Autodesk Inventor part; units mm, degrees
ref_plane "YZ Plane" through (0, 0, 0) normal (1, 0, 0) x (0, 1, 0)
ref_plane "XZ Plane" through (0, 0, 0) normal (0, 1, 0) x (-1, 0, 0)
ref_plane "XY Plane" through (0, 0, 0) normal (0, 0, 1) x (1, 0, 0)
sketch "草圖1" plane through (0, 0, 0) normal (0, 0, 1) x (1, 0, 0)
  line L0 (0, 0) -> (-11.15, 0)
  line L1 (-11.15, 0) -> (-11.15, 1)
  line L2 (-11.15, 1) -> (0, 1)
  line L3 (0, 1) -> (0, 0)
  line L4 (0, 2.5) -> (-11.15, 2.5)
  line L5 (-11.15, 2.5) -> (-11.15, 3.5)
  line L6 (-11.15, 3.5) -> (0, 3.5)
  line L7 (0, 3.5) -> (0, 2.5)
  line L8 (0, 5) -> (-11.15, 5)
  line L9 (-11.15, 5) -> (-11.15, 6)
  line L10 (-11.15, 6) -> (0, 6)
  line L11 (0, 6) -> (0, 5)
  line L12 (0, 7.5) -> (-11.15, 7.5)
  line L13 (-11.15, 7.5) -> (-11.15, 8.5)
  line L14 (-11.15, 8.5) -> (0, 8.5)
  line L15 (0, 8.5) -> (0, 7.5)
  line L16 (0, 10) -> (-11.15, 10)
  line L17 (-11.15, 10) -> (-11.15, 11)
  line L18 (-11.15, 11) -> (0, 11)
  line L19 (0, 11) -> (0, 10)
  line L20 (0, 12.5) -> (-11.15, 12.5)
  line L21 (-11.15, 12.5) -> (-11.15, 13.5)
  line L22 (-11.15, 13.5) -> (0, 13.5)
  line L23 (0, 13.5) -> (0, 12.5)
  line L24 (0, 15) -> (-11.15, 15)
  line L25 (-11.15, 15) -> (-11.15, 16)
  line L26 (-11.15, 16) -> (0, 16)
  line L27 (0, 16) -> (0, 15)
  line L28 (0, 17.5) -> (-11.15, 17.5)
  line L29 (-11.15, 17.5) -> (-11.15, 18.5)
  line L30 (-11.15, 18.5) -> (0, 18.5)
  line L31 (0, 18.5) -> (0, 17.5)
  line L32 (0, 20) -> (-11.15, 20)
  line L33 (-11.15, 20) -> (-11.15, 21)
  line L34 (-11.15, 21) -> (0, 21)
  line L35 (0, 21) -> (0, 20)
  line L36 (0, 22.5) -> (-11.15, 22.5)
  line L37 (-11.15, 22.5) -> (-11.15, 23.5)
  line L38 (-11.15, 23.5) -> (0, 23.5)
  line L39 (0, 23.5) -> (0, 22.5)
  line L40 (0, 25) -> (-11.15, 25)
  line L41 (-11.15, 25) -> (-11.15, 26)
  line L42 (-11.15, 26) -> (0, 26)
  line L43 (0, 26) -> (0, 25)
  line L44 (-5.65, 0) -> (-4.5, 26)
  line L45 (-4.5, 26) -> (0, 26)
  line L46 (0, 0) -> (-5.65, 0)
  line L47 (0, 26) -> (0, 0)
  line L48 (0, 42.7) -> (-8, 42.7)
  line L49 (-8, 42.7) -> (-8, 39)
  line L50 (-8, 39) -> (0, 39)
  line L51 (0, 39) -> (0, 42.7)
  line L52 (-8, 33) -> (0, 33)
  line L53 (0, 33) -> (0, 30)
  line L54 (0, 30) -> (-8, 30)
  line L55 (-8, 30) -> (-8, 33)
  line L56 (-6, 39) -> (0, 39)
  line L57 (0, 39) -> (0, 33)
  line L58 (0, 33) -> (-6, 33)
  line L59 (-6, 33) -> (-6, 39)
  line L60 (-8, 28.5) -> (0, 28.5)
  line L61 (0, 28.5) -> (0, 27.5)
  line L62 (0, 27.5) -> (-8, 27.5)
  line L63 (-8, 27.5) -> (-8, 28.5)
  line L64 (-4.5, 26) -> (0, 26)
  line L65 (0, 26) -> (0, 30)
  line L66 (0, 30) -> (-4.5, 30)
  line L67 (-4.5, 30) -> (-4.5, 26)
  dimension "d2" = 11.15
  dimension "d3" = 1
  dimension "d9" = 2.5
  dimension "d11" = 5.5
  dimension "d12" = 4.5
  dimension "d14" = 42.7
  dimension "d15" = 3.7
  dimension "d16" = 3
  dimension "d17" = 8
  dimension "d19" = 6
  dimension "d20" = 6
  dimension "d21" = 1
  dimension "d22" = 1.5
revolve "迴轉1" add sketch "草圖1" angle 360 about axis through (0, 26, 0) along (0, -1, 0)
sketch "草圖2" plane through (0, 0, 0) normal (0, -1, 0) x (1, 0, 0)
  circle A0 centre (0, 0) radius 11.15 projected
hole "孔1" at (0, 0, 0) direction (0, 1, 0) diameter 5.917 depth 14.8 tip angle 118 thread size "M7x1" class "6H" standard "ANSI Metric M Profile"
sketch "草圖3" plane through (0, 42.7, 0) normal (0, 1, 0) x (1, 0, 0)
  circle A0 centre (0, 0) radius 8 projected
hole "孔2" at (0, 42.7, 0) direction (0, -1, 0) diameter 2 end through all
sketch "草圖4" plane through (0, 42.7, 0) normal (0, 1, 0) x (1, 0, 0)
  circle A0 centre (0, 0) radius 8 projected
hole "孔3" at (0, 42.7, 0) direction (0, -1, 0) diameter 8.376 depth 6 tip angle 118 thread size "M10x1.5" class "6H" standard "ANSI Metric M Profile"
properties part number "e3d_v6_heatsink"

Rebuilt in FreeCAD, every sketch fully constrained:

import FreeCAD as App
import Part
import Sketcher

V = App.Vector


def add_polygon(sketch, points):
    """Adds a closed chain of lines whose ends are joined by coincident constraints."""
    first, n = sketch.GeometryCount, len(points)
    for a, b in zip(points, points[1:] + points[:1]):
        sketch.addGeometry(Part.LineSegment(App.Vector(*a, 0), App.Vector(*b, 0)), False)
    for i in range(n):
        sketch.addConstraint(Sketcher.Constraint("Coincident", first + i, 2, first + (i + 1) % n, 1))

doc = App.newDocument("Part")
body = doc.addObject("PartDesign::Body", "Body")

sketch1 = doc.addObject("Sketcher::SketchObject", "Sketch")
body.addObject(sketch1)
sketch1.AttachmentSupport = (doc.XY_Plane, [""])
sketch1.MapMode = "FlatFace"
add_polygon(sketch1, [(0, 0), (0, 42.7), (-8, 42.7), (-8, 39), (-6, 39), (-6, 33), (-8, 33), (-8, 30), (-4.5, 30), (-4.5, 28.5), (-8, 28.5), (-8, 27.5), (-4.5, 27.5), (-4.5, 26), (-11.2, 26), (-11.2, 25), (-4.5, 25), (-4.6, 23.5), (-11.2, 23.5), (-11.2, 22.5), (-4.7, 22.5), (-4.7, 21), (-11.2, 21), (-11.2, 20), (-4.8, 20), (-4.8, 18.5), (-11.2, 18.5), (-11.2, 17.5), (-4.9, 17.5), (-4.9, 16), (-11.2, 16), (-11.2, 15), (-5, 15), (-5.1, 13.5), (-11.2, 13.5), (-11.2, 12.5), (-5.1, 12.5), (-5.2, 11), (-11.2, 11), (-11.2, 10), (-5.2, 10), (-5.3, 8.5), (-11.2, 8.5), (-11.2, 7.5), (-5.3, 7.5), (-5.4, 6), (-11.2, 6), (-11.2, 5), (-5.4, 5), (-5.5, 3.5), (-11.2, 3.5), (-11.2, 2.5), (-5.5, 2.5), (-5.6, 1), (-11.2, 1), (-11.2, 0)])
sketch1.addConstraint([
    Sketcher.Constraint("Vertical", 0),
    Sketcher.Constraint("Horizontal", 1),
    Sketcher.Constraint("Vertical", 2),
    Sketcher.Constraint("Horizontal", 3),
    Sketcher.Constraint("Vertical", 4),
    Sketcher.Constraint("Horizontal", 5),
    Sketcher.Constraint("Vertical", 6),
    Sketcher.Constraint("Horizontal", 7),
    Sketcher.Constraint("Vertical", 8),
    Sketcher.Constraint("Horizontal", 9),
    Sketcher.Constraint("Vertical", 10),
    Sketcher.Constraint("Horizontal", 11),
    Sketcher.Constraint("Vertical", 12),
    Sketcher.Constraint("Horizontal", 13),
    Sketcher.Constraint("Vertical", 14),
    Sketcher.Constraint("Horizontal", 15),
    Sketcher.Constraint("Horizontal", 17),
    Sketcher.Constraint("Vertical", 18),
    Sketcher.Constraint("Horizontal", 19),
    Sketcher.Constraint("Horizontal", 21),
    Sketcher.Constraint("Vertical", 22),
    Sketcher.Constraint("Horizontal", 23),
    Sketcher.Constraint("Horizontal", 25),
    Sketcher.Constraint("Vertical", 26),
    Sketcher.Constraint("Horizontal", 27),
    Sketcher.Constraint("Horizontal", 29),
    Sketcher.Constraint("Vertical", 30),
    Sketcher.Constraint("Horizontal", 31),
    Sketcher.Constraint("Horizontal", 33),
    Sketcher.Constraint("Vertical", 34),
    Sketcher.Constraint("Horizontal", 35),
    Sketcher.Constraint("Horizontal", 37),
    Sketcher.Constraint("Vertical", 38),
    Sketcher.Constraint("Horizontal", 39),
    Sketcher.Constraint("Horizontal", 41),
    Sketcher.Constraint("Vertical", 42),
    Sketcher.Constraint("Horizontal", 43),
    Sketcher.Constraint("Horizontal", 45),
    Sketcher.Constraint("Vertical", 46),
    Sketcher.Constraint("Horizontal", 47),
    Sketcher.Constraint("Horizontal", 49),
    Sketcher.Constraint("Vertical", 50),
    Sketcher.Constraint("Horizontal", 51),
    Sketcher.Constraint("Horizontal", 53),
    Sketcher.Constraint("Vertical", 54),
    Sketcher.Constraint("Horizontal", 55),
    Sketcher.Constraint("Coincident", 55, 2, -1, 1),
    Sketcher.Constraint("Parallel", 16, 20),
    Sketcher.Constraint("Parallel", 20, 24),
    Sketcher.Constraint("Parallel", 24, 28),
    Sketcher.Constraint("Parallel", 28, 32),
    Sketcher.Constraint("Parallel", 32, 36),
    Sketcher.Constraint("Parallel", 36, 40),
    Sketcher.Constraint("Parallel", 40, 44),
    Sketcher.Constraint("Parallel", 44, 48),
    Sketcher.Constraint("Parallel", 48, 52),
    Sketcher.Constraint("Vertical", 2, 2, 5, 2),
    Sketcher.Constraint("Vertical", 6, 2, 9, 2),
    Sketcher.Constraint("Vertical", 8, 2, 11, 2),
    Sketcher.Constraint("Vertical", 14, 2, 17, 2),
    Sketcher.Constraint("Vertical", 18, 2, 21, 2),
    Sketcher.Constraint("Vertical", 22, 2, 25, 2),
    Sketcher.Constraint("Vertical", 26, 2, 29, 2),
    Sketcher.Constraint("Vertical", 30, 2, 33, 2),
    Sketcher.Constraint("Vertical", 34, 2, 37, 2),
    Sketcher.Constraint("Vertical", 38, 2, 41, 2),
    Sketcher.Constraint("Vertical", 42, 2, 45, 2),
    Sketcher.Constraint("Vertical", 46, 2, 49, 2),
    Sketcher.Constraint("Vertical", 50, 2, 53, 2),
    Sketcher.Constraint("Equal", 8, 12),
    Sketcher.Constraint("Equal", 10, 14),
    Sketcher.Constraint("Equal", 14, 18),
    Sketcher.Constraint("Equal", 18, 22),
    Sketcher.Constraint("Equal", 22, 26),
    Sketcher.Constraint("Equal", 26, 30),
    Sketcher.Constraint("Equal", 30, 34),
    Sketcher.Constraint("Equal", 34, 38),
    Sketcher.Constraint("Equal", 38, 42),
    Sketcher.Constraint("Equal", 42, 46),
    Sketcher.Constraint("Equal", 46, 50),
    Sketcher.Constraint("Equal", 50, 54),
    Sketcher.Constraint("Equal", 16, 20),
    Sketcher.Constraint("Equal", 20, 24),
    Sketcher.Constraint("Equal", 24, 28),
    Sketcher.Constraint("Equal", 28, 32),
    Sketcher.Constraint("Equal", 32, 36),
    Sketcher.Constraint("Equal", 36, 40),
    Sketcher.Constraint("Equal", 40, 44),
    Sketcher.Constraint("Equal", 44, 48),
    Sketcher.Constraint("Equal", 48, 52),
    Sketcher.Constraint("DistanceX", 1, 2, 1, 1, 8.0),
    Sketcher.Constraint("DistanceY", 4, 2, 4, 1, 6.0),
    Sketcher.Constraint("DistanceY", 6, 2, 6, 1, 3.0),
    Sketcher.Constraint("DistanceY", 10, 2, 10, 1, 1.0),
    Sketcher.Constraint("DistanceY", 0, 1, 0, 2, 42.7),
    Sketcher.Constraint("DistanceY", 2, 2, 2, 1, 3.7),
    Sketcher.Constraint("DistanceY", 8, 2, 8, 1, 1.5),
    Sketcher.Constraint("DistanceX", 3, 2, -1, 1, 6.0),
    Sketcher.Constraint("DistanceX", 55, 1, 55, 2, 11.15),
    Sketcher.Constraint("DistanceX", 7, 2, -1, 1, 4.5),
    Sketcher.Constraint("DistanceX", 27, 1, 27, 2, 6.274),
    Sketcher.Constraint("DistanceX", 33, 2, 33, 1, 6.097),
    Sketcher.Constraint("DistanceX", 35, 1, 35, 2, 6.053),
    Sketcher.Constraint("DistanceX", 41, 2, 41, 1, 5.876),
    Sketcher.Constraint("DistanceX", 15, 1, 15, 2, 6.6058),
    Sketcher.Constraint("DistanceX", 17, 2, 17, 1, 6.5394),
    Sketcher.Constraint("DistanceX", 19, 1, 19, 2, 6.4952),
    Sketcher.Constraint("DistanceX", 23, 1, 23, 2, 6.3846),
    Sketcher.Constraint("DistanceX", 43, 1, 43, 2, 5.8317),
    Sketcher.Constraint("DistanceX", 47, 1, 47, 2, 5.7212),
    Sketcher.Constraint("DistanceX", 51, 1, 51, 2, 5.6106),
])
revolution = doc.addObject("PartDesign::Revolution", "Revolution")
body.addObject(revolution)
revolution.Profile = sketch1
revolution.ReferenceAxis = (sketch1, ["V_Axis"])
revolution.Angle = 360

sketch2 = doc.addObject("Sketcher::SketchObject", "Sketch001")
body.addObject(sketch2)
sketch2.AttachmentSupport = (doc.XZ_Plane, [""])
sketch2.MapMode = "FlatFace"
sketch2.addGeometry(Part.Circle(V(0, 0, 0), V(0, 0, 1), 3), False)
sketch2.addConstraint([
    Sketcher.Constraint("Coincident", 0, 3, -1, 1),
    Sketcher.Constraint("Diameter", 0, 5.917),
])
doc.recompute()
hole = doc.addObject("PartDesign::Hole", "Hole")
body.addObject(hole)
hole.Profile = sketch2
hole.ThreadType = "None"
hole.Diameter = 5.917
hole.DepthType = "Dimension"
hole.Depth = 14.8
hole.DrillPoint = "Angled"
hole.DrillPointAngle = 118

sketch3 = doc.addObject("Sketcher::SketchObject", "Sketch002")
body.addObject(sketch3)
sketch3.AttachmentSupport = (doc.XZ_Plane, [""])
sketch3.MapMode = "FlatFace"
sketch3.AttachmentOffset = App.Placement(V(0, 0, -42.7), App.Rotation())
sketch3.addGeometry(Part.Circle(V(0, 0, 0), V(0, 0, 1), 1), False)
sketch3.addConstraint([
    Sketcher.Constraint("Coincident", 0, 3, -1, 1),
    Sketcher.Constraint("Diameter", 0, 2.0),
])
doc.recompute()
hole2 = doc.addObject("PartDesign::Hole", "Hole001")
body.addObject(hole2)
hole2.Profile = sketch3
hole2.ThreadType = "None"
hole2.Diameter = 2
hole2.DepthType = "ThroughAll"
hole2.Reversed = True

sketch4 = doc.addObject("Sketcher::SketchObject", "Sketch003")
body.addObject(sketch4)
sketch4.AttachmentSupport = (doc.XZ_Plane, [""])
sketch4.MapMode = "FlatFace"
sketch4.AttachmentOffset = App.Placement(V(0, 0, -42.7), App.Rotation())
sketch4.addGeometry(Part.Circle(V(0, 0, 0), V(0, 0, 1), 4.2), False)
sketch4.addConstraint([
    Sketcher.Constraint("Coincident", 0, 3, -1, 1),
    Sketcher.Constraint("Diameter", 0, 8.376),
])
doc.recompute()
hole3 = doc.addObject("PartDesign::Hole", "Hole002")
body.addObject(hole3)
hole3.Profile = sketch4
hole3.ThreadType = "None"
hole3.Diameter = 8.376
hole3.DepthType = "Dimension"
hole3.Depth = 6
hole3.DrillPoint = "Angled"
hole3.DrillPointAngle = 118
hole3.Reversed = True

doc.recompute()
